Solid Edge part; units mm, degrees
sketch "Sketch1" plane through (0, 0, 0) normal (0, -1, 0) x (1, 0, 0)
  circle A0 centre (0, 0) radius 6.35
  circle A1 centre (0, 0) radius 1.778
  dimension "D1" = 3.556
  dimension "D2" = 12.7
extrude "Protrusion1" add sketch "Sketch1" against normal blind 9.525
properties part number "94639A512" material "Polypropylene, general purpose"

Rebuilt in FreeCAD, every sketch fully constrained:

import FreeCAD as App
import Part
import Sketcher
from FreeCAD import Vector
Q = App.Units.Quantity

doc = App.newDocument("Part")
body = doc.addObject("PartDesign::Body", "Body")

# Sketch on XZ plane
sketch1 = body.newObject("Sketcher::SketchObject", "Sketch")
sketch1.AttachmentSupport = (doc.getObject("XZ_Plane"), [""])
sketch1.MapMode = "FlatFace"
sketch1.addGeometry([
    Part.Circle(Vector(0, 0, 0), Vector(0, 0, 1), 6.35),
    Part.Circle(Vector(0, 0, 0), Vector(0, 0, 1), 1.778),
], False)
sketch1.addConstraint([
    Sketcher.Constraint("Coincident", 0, 3, -1, 1),
    Sketcher.Constraint("Coincident", 1, 3, -1, 1),
    Sketcher.Constraint("Diameter", 0, Q("0.5 in")),
    Sketcher.Constraint("Diameter", 1, Q("0.14 in")),
])
pad1 = body.newObject("PartDesign::Pad", "Pad")
pad1.Profile = sketch1
pad1.Length = Q("0.375 in")
pad1.Reversed = True

doc.recompute()
